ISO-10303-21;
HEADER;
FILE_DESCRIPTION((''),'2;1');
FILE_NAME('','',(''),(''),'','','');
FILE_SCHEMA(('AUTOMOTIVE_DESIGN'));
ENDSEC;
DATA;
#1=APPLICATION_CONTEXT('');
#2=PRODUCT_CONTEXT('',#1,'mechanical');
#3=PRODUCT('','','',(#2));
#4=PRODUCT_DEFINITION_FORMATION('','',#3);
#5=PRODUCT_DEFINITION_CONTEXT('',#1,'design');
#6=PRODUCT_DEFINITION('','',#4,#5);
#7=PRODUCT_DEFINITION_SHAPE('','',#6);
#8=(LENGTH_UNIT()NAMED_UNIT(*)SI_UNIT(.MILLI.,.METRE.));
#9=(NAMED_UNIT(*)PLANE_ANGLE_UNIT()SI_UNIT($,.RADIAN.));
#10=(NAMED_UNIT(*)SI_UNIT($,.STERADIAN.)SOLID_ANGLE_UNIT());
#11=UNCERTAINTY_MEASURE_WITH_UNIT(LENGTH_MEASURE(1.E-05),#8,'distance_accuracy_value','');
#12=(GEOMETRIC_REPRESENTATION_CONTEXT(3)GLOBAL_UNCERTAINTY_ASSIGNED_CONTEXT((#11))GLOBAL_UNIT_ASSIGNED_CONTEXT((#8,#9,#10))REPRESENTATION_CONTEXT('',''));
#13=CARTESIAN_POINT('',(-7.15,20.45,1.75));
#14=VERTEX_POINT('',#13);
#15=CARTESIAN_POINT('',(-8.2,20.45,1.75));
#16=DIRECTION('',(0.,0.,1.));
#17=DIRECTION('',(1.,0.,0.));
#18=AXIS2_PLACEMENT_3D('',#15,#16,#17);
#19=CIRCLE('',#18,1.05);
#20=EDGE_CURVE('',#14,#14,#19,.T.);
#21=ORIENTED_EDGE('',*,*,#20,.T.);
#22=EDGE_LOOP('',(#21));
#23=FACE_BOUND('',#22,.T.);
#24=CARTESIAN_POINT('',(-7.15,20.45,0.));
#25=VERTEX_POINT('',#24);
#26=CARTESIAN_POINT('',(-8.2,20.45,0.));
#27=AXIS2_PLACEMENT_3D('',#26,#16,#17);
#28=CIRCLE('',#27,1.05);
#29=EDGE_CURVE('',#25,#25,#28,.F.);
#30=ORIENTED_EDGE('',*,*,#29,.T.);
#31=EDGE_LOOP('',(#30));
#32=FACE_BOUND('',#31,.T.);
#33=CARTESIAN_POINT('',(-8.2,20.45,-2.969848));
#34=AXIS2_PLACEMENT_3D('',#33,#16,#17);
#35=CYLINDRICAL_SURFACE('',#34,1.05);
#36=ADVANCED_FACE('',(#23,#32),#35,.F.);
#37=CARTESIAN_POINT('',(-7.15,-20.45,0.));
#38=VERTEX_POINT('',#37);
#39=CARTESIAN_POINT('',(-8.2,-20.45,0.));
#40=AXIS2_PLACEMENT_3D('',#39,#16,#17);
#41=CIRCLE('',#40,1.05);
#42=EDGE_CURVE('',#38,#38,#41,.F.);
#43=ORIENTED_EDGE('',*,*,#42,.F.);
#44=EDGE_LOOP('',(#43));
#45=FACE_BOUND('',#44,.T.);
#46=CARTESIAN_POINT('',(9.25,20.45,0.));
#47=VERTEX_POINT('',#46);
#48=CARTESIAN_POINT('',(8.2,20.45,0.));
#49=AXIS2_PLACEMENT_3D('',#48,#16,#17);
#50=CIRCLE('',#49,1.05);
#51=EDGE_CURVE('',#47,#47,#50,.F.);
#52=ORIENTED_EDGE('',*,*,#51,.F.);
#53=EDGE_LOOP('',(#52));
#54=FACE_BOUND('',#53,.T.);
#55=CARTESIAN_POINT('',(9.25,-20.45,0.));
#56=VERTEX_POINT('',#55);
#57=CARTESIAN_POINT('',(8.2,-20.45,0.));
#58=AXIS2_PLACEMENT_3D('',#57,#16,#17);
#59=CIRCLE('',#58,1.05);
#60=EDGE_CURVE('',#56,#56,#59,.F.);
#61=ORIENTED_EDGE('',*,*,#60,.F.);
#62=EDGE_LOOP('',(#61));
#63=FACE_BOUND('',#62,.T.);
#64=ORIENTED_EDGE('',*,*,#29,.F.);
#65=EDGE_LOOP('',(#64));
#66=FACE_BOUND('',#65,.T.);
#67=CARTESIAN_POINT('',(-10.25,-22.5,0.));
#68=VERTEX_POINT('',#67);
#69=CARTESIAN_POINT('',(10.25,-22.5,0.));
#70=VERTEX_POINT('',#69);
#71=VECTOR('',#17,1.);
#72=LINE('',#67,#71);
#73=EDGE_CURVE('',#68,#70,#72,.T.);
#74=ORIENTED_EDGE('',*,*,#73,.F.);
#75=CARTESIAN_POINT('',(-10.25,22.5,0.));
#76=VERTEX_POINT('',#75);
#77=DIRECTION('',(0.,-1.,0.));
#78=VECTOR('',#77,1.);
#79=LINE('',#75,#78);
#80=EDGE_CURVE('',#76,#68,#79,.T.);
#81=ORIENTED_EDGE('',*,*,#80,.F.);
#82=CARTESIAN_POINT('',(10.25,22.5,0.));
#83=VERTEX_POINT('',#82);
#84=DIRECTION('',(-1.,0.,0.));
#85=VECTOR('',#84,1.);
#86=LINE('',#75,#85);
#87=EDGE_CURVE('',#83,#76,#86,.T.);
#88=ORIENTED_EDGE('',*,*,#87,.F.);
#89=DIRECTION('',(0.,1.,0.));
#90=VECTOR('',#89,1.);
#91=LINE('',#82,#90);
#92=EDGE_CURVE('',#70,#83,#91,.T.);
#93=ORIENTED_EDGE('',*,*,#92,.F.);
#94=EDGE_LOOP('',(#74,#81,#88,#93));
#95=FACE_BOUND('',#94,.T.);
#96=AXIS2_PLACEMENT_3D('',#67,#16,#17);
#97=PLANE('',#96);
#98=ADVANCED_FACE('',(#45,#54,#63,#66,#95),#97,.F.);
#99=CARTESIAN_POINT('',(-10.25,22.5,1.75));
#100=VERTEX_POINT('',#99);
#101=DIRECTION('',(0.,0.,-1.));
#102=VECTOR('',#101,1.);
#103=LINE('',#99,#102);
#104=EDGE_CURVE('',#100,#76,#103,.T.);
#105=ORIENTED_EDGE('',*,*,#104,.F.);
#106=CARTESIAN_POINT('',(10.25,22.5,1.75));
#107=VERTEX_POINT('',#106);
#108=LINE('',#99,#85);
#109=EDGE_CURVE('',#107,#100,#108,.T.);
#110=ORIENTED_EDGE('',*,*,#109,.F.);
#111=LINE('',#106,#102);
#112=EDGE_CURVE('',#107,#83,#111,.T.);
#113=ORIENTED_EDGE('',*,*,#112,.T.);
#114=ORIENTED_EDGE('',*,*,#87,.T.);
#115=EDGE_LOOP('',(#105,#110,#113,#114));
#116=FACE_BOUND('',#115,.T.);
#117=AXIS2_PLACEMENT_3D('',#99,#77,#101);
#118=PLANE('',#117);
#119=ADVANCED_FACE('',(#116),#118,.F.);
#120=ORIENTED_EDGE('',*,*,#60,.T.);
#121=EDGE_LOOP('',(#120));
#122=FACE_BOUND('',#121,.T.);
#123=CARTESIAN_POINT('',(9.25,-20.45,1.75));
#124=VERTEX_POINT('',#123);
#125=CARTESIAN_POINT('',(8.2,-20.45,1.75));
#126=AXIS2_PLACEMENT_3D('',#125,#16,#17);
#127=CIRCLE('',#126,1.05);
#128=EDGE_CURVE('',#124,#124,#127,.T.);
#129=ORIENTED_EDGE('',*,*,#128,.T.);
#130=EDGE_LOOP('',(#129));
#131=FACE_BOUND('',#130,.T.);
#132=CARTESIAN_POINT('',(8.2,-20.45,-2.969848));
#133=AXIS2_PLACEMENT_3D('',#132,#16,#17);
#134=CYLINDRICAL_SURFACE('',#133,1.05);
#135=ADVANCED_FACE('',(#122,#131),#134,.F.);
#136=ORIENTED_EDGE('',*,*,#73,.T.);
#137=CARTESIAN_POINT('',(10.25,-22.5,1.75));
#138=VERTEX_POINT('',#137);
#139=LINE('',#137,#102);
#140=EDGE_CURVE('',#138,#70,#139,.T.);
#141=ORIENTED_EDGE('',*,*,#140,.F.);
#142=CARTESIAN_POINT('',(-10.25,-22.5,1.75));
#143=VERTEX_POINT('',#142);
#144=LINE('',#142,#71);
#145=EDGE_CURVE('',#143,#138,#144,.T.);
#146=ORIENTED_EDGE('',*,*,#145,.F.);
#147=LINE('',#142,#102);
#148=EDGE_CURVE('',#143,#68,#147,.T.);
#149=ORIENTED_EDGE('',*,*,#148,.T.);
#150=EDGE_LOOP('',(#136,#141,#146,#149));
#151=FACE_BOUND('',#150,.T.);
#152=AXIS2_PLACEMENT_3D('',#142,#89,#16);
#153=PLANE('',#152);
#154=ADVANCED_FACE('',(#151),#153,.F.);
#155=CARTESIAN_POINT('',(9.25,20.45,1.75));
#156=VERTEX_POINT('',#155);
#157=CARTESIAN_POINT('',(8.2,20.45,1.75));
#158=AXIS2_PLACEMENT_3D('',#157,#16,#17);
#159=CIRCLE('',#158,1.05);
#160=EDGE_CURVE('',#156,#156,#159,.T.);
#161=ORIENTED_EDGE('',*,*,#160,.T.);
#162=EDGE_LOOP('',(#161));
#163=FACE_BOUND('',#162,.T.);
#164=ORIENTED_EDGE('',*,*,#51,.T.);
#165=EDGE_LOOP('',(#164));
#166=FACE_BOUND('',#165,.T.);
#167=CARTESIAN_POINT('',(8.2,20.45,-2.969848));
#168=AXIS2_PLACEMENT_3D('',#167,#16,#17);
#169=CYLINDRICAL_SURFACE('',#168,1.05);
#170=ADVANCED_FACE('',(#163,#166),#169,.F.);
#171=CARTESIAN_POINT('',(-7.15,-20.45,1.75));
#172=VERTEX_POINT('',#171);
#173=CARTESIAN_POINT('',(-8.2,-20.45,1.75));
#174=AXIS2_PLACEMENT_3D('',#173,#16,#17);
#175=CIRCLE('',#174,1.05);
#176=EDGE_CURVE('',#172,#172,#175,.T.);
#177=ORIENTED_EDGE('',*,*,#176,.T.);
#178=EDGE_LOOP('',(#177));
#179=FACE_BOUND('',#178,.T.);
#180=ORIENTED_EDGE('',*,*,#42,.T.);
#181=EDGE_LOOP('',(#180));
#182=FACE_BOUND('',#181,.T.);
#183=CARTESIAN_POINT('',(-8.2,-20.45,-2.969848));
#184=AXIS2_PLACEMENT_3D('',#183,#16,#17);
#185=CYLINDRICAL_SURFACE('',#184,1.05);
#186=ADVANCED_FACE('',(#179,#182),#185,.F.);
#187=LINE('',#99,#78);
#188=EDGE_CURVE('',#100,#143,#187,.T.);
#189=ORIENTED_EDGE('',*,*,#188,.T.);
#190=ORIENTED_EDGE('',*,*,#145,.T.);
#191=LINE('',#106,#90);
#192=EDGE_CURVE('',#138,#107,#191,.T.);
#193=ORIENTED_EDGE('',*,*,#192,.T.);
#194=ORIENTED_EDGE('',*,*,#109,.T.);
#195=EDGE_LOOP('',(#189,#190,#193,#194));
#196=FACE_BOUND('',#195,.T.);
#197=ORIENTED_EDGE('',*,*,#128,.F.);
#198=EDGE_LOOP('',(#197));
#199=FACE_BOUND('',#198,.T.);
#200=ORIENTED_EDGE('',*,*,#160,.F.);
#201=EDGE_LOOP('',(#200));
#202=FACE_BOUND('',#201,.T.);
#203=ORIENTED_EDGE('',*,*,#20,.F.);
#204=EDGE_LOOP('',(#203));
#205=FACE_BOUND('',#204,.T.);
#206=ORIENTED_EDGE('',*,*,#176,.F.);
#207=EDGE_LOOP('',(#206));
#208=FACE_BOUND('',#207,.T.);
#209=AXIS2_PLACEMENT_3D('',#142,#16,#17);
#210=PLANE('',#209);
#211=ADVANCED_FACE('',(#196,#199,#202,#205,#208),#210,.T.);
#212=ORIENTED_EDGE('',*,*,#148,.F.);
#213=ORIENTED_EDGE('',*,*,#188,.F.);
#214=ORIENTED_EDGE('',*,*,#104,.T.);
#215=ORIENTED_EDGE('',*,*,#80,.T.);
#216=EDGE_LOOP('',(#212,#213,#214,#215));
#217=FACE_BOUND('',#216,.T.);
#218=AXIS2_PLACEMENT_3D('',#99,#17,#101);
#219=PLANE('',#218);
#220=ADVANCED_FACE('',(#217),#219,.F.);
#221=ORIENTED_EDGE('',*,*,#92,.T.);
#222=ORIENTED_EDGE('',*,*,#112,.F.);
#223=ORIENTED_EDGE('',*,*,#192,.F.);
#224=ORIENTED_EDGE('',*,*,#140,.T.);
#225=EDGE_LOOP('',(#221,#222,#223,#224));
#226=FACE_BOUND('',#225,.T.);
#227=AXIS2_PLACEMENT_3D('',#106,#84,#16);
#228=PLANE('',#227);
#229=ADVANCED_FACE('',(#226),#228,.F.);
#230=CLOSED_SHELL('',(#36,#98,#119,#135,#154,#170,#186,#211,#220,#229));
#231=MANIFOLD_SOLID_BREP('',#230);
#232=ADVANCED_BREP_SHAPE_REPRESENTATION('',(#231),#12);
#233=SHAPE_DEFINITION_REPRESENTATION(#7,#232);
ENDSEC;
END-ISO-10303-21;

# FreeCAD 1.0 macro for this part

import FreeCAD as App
import Part
import Sketcher
from FreeCAD import Vector

doc = App.newDocument("Part")
body = doc.addObject("PartDesign::Body", "Body")

sketch1 = body.newObject("Sketcher::SketchObject", "Sketch")
sketch1.AttachmentSupport = (doc.getObject("XY_Plane"), [""])
sketch1.MapMode = "FlatFace"
sketch1.addGeometry([
    Part.LineSegment(Vector(-10.25, 22.5, 0), Vector(-10.25, -22.5, 0)),
    Part.LineSegment(Vector(-10.25, -22.5, 0), Vector(10.25, -22.5, 0)),
    Part.LineSegment(Vector(10.25, -22.5, 0), Vector(10.25, 22.5, 0)),
    Part.LineSegment(Vector(10.25, 22.5, 0), Vector(-10.25, 22.5, 0)),
], False)
sketch1.addConstraint([
    Sketcher.Constraint("Coincident", 0, 2, 1, 1),
    Sketcher.Constraint("Coincident", 1, 2, 2, 1),
    Sketcher.Constraint("Coincident", 2, 2, 3, 1),
    Sketcher.Constraint("Coincident", 3, 2, 0, 1),
    Sketcher.Constraint("Vertical", 0),
    Sketcher.Constraint("Horizontal", 1),
    Sketcher.Constraint("Vertical", 2),
    Sketcher.Constraint("Horizontal", 3),
    Sketcher.Constraint("Symmetric", 0, 2, 2, 2, -1, 1),
    Sketcher.Constraint("DistanceY", 0, 2, 0, 1, 45.0),
    Sketcher.Constraint("DistanceX", 1, 1, 1, 2, 20.5),
])
pad1 = body.newObject("PartDesign::Pad", "Pad")
pad1.Profile = sketch1
pad1.Length = 1.75

sketch2 = body.newObject("Sketcher::SketchObject", "Sketch001")
sketch2.AttachmentSupport = (doc.getObject("XY_Plane"), [""])
sketch2.MapMode = "FlatFace"
sketch2.AttachmentOffset = App.Placement(Vector(0, 0, 1.75), App.Rotation())
sketch2.addGeometry([
    Part.Circle(Vector(8.2, -20.45, 0), Vector(0, 0, 1), 1.05),
    Part.Circle(Vector(-8.2, 20.45, 0), Vector(0, 0, 1), 1.05),
    Part.Circle(Vector(-8.2, -20.45, 0), Vector(0, 0, 1), 1.05),
    Part.Circle(Vector(8.2, 20.45, 0), Vector(0, 0, 1), 1.05),
], False)
sketch2.addConstraint([
    Sketcher.Constraint("Equal", 0, 1),
    Sketcher.Constraint("Equal", 1, 2),
    Sketcher.Constraint("Equal", 2, 3),
    Sketcher.Constraint("Symmetric", 0, 3, 1, 3, -1, 1),
    Sketcher.Constraint("Symmetric", 2, 3, 3, 3, -1, 1),
    Sketcher.Constraint("Symmetric", 0, 3, 2, 3, -2),
    Sketcher.Constraint("Diameter", 0, 2.1),
    Sketcher.Constraint("DistanceX", -1, 1, 0, 3, 8.2),
    Sketcher.Constraint("DistanceY", 0, 3, 1, 3, 40.9),
])
pocket1 = body.newObject("PartDesign::Pocket", "Pocket")
pocket1.Profile = sketch2
pocket1.Length = 1.75

doc.recompute()
